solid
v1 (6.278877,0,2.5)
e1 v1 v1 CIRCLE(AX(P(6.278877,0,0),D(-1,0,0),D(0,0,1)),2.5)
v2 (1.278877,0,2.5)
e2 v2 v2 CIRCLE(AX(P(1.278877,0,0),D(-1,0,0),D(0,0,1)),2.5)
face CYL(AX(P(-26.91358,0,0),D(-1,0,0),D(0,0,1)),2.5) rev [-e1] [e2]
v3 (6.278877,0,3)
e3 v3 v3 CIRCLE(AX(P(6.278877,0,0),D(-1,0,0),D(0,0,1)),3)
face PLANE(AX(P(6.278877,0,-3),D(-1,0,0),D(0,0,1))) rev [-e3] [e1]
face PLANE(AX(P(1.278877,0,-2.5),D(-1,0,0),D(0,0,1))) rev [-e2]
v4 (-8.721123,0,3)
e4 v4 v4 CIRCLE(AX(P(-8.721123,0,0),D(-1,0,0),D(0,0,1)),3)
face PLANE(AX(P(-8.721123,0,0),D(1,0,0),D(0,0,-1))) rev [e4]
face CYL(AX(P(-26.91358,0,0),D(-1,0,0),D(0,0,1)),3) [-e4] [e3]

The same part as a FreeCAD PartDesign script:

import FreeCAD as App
import Part
import Sketcher
from FreeCAD import Vector


def add_polygon(sketch, points):
    """Adds a closed chain of lines whose ends are joined by coincident constraints."""
    first, n = sketch.GeometryCount, len(points)
    for a, b in zip(points, points[1:] + points[:1]):
        sketch.addGeometry(Part.LineSegment(App.Vector(*a, 0), App.Vector(*b, 0)), False)
    for i in range(n):
        sketch.addConstraint(Sketcher.Constraint("Coincident", first + i, 2, first + (i + 1) % n, 1))

doc = App.newDocument("Part")
body = doc.addObject("PartDesign::Body", "Body")

# Sketch on XZ plane
sketch1 = body.newObject("Sketcher::SketchObject", "Sketch")
sketch1.AttachmentSupport = (doc.getObject("XZ_Plane"), [""])
sketch1.MapMode = "FlatFace"
add_polygon(sketch1, [(-8.7, -3), (-8.7, 0), (1.3, 0), (1.3, -2.5), (6.3, -2.5), (6.3, -3)])  # lines 0-5
sketch1.addConstraint(Sketcher.Constraint("Vertical", 0))
sketch1.addConstraint(Sketcher.Constraint("Horizontal", 1))
sketch1.addConstraint(Sketcher.Constraint("Vertical", 2))
sketch1.addConstraint(Sketcher.Constraint("Horizontal", 3))
sketch1.addConstraint(Sketcher.Constraint("Vertical", 4))
sketch1.addConstraint(Sketcher.Constraint("Horizontal", 5))
sketch1.addConstraint(Sketcher.Constraint("PointOnObject", 0, 2, -1))
sketch1.addConstraint(Sketcher.Constraint("DistanceX", 1, 1, 1, 2, 10.0))
sketch1.addConstraint(Sketcher.Constraint("DistanceX", 3, 1, 3, 2, 5.0))
sketch1.addConstraint(Sketcher.Constraint("DistanceY", 0, 1, 0, 2, 3.0))
sketch1.addConstraint(Sketcher.Constraint("DistanceY", 2, 2, 2, 1, 2.5))
sketch1.addConstraint(Sketcher.Constraint("DistanceX", 0, 2, -1, 1, 8.721123))
revolution = body.newObject("PartDesign::Revolution", "Revolution")
revolution.Profile = sketch1
revolution.ReferenceAxis = (sketch1, ["H_Axis"])
revolution.Angle = 360

doc.recompute()
